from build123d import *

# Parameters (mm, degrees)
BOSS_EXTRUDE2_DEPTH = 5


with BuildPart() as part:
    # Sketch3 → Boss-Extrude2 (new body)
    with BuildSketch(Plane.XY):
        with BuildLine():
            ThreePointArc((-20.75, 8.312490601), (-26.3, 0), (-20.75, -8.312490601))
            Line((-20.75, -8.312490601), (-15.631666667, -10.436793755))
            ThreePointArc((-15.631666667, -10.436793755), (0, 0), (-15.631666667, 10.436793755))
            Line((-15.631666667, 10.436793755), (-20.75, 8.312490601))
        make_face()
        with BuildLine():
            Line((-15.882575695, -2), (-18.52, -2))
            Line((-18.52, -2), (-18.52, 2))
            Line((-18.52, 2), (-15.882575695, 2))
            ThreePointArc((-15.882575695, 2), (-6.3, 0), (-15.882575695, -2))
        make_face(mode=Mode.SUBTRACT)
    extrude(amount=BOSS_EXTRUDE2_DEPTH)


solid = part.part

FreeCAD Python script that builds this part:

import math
import FreeCAD as App
import Part
import Sketcher

V = App.Vector
Q = App.Units.Quantity

doc = App.newDocument("Part")
params = doc.addObject("Spreadsheet::Sheet", "Params")
for row, (alias, value) in enumerate([
    ("sketch1_radius", "9 mm"),
    ("sketch1_radius2", "5 mm"),
    ("sketch1_radius3", "11.3 mm"),
    ("sketch1_height", "4 mm"),
    ("pad1_length", "5 mm"),
], start=1):
    params.set(f"A{row}", alias)
    params.set(f"B{row}", "=" + value)
    params.setAlias(f"B{row}", alias)

body = doc.addObject("PartDesign::Body", "Body")

# Sketch on XY plane
sketch1 = body.newObject("Sketcher::SketchObject", "Sketch")
sketch1.AttachmentSupport = (doc.getObject("XY_Plane"), [""])
sketch1.MapMode = "FlatFace"
sketch1.addGeometry([
    Part.ArcOfCircle(Part.Circle(V(-17.3, 0, 0), V(0, 0, 1), 9), math.radians(112.54031), math.radians(247.45969)),  # 0
    Part.LineSegment(V(-20.75, -8.312491, 0), V(-15.631667, -10.436794, 0)),  # 1
    Part.ArcOfCircle(Part.Circle(V(-11.3, 0, 0), V(0, 0, 1), 11.3), math.radians(-112.54031), math.radians(112.54031)),  # 2
    Part.LineSegment(V(-15.631667, 10.436794, 0), V(-20.75, 8.312491, 0)),  # 3
    Part.ArcOfCircle(Part.Circle(V(-11.3, 0, 0), V(0, 0, 1), 5), math.radians(-156.421822), math.radians(156.421822)),  # 4
    Part.LineSegment(V(-15.882576, -2, 0), V(-18.52, -2, 0)),  # 5
    Part.LineSegment(V(-18.52, -2, 0), V(-18.52, 2, 0)),  # 6
    Part.LineSegment(V(-18.52, 2, 0), V(-15.882576, 2, 0)),  # 7
], False)
sketch1.addConstraint([
    Sketcher.Constraint("Tangent", 0, 2, 1, 1),
    Sketcher.Constraint("Tangent", 1, 2, 2, 1),
    Sketcher.Constraint("Tangent", 2, 2, 3, 1),
    Sketcher.Constraint("Tangent", 3, 2, 0, 1),
    Sketcher.Constraint("Coincident", 4, 1, 5, 1),
    Sketcher.Constraint("Coincident", 5, 2, 6, 1),
    Sketcher.Constraint("Coincident", 6, 2, 7, 1),
    Sketcher.Constraint("Coincident", 7, 2, 4, 2),
    Sketcher.Constraint("Horizontal", 5),
    Sketcher.Constraint("Vertical", 6),
    Sketcher.Constraint("Horizontal", 7),
    Sketcher.Constraint("Coincident", 4, 3, 2, 3),
    Sketcher.Constraint("Symmetric", 1, 2, 2, 2, -1),
    Sketcher.Constraint("Vertical", 4, 1, 7, 2),
    Sketcher.Constraint("Radius", 0, Q("9 mm")),
    Sketcher.Constraint("Radius", 4, Q("5 mm")),
    Sketcher.Constraint("Radius", 2, Q("11.3 mm")),
    Sketcher.Constraint("DistanceY", 6, 1, 6, 2, Q("4 mm")),
    Sketcher.Constraint("DistanceX", 0, 3, 2, 3, Q("6 mm")),
    Sketcher.Constraint("DistanceX", 0, 3, -1, 1, Q("17.3 mm")),
    Sketcher.Constraint("DistanceX", 5, 2, -1, 1, Q("18.52 mm")),
])
sketch1.setExpression("Constraints[14]", "Params.sketch1_radius")
sketch1.setExpression("Constraints[15]", "Params.sketch1_radius2")
sketch1.setExpression("Constraints[16]", "Params.sketch1_radius3")
sketch1.setExpression("Constraints[17]", "Params.sketch1_height")
pad1 = body.newObject("PartDesign::Pad", "Pad")
pad1.Profile = sketch1
pad1.setExpression("Length", "Params.pad1_length")

doc.recompute()
